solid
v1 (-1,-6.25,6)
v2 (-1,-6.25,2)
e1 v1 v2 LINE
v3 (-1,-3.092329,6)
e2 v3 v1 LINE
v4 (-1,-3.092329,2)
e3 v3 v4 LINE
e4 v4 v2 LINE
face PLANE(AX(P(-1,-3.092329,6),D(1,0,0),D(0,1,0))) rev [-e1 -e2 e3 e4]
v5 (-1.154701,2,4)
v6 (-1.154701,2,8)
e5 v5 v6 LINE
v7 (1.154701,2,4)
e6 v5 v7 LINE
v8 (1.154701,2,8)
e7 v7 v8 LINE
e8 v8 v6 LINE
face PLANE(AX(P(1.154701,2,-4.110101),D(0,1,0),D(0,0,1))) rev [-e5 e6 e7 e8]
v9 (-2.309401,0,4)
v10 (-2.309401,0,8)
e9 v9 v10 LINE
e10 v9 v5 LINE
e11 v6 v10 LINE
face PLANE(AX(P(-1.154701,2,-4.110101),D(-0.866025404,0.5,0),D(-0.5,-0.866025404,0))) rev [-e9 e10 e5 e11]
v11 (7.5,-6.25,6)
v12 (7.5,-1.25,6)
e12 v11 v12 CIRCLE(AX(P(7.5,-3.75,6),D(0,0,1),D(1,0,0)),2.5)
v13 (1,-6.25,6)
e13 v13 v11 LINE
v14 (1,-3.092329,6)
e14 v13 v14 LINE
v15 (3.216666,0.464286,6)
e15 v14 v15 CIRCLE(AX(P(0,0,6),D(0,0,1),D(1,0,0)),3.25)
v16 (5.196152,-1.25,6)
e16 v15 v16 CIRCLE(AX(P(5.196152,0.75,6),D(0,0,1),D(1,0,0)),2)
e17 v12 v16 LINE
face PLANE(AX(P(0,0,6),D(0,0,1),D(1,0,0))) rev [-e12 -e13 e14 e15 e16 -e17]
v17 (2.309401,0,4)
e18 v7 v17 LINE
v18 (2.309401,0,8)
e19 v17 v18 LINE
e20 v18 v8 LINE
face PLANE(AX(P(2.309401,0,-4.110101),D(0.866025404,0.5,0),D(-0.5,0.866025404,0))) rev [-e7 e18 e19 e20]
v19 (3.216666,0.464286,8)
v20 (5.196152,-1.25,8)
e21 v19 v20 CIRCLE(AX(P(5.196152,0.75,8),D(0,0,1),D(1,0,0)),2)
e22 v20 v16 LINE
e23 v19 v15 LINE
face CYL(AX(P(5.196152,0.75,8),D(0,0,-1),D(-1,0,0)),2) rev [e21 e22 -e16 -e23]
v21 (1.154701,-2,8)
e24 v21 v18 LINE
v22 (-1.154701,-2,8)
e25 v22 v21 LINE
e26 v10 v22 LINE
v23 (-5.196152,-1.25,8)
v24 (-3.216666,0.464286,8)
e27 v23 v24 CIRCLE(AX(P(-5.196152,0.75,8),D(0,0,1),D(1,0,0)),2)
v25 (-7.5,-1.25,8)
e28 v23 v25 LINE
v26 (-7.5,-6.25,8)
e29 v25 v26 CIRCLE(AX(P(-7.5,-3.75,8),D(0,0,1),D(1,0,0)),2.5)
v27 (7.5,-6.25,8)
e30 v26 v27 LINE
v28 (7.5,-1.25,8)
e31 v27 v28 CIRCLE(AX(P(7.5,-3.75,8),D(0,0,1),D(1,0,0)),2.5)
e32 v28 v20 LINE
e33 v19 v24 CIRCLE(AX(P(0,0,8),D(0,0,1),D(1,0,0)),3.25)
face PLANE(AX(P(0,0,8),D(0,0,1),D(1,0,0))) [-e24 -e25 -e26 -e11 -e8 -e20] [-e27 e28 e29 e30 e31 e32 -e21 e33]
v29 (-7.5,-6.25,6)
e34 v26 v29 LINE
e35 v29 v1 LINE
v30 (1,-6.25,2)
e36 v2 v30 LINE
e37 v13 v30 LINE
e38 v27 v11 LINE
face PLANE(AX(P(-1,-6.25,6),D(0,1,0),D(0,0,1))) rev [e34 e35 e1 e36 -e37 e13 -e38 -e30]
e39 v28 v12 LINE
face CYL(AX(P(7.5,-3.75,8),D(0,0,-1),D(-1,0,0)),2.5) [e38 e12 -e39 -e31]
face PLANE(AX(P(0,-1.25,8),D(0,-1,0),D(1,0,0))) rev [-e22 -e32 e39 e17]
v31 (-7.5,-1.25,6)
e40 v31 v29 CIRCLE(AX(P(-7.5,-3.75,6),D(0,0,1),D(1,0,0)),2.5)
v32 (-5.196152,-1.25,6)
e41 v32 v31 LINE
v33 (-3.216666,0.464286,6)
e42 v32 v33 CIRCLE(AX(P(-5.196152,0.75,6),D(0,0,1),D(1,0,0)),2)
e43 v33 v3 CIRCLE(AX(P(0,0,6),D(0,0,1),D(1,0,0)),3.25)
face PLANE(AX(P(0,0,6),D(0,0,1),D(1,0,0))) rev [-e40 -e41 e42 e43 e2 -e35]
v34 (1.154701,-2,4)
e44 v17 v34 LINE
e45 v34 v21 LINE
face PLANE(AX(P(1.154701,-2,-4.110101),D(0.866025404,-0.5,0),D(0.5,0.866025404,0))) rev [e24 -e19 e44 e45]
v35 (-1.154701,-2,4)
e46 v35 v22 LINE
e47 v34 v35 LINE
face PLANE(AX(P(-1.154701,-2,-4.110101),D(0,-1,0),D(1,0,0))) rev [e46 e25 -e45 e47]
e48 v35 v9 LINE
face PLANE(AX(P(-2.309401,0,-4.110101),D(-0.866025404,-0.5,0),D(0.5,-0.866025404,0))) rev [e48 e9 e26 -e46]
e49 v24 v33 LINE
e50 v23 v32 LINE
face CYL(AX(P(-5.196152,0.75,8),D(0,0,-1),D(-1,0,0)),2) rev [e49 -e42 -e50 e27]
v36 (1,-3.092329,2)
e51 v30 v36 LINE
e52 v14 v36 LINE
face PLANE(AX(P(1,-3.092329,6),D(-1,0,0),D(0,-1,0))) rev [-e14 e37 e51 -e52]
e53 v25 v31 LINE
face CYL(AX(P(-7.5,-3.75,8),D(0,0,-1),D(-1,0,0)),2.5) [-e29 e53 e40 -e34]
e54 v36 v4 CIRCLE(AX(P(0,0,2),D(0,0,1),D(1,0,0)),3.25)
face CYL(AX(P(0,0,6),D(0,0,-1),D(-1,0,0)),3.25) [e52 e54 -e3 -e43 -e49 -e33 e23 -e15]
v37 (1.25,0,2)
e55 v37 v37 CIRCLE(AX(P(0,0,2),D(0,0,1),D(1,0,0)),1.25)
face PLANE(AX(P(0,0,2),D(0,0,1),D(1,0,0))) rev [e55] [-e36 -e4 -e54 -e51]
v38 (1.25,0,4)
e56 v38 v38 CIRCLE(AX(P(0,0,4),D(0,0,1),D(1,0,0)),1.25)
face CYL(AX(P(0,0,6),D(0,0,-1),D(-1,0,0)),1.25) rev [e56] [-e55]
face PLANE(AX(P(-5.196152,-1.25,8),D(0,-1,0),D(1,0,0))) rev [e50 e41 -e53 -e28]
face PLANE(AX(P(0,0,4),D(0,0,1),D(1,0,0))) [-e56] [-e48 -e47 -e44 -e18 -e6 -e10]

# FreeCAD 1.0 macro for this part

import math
import FreeCAD as App
import Part
import Sketcher
Q = App.Units.Quantity


def edges_at(feature, points):
    """Names of the edges that pass closest to the given points."""
    edges = feature.Shape.Edges
    near = lambda p: min(range(len(edges)), key=lambda i: edges[i].distToShape(Part.Vertex(*p))[0])
    return sorted({f"Edge{near(p) + 1}" for p in points})


def add_polygon(sketch, points):
    """Adds a closed chain of lines whose ends are joined by coincident constraints."""
    first, n = sketch.GeometryCount, len(points)
    for a, b in zip(points, points[1:] + points[:1]):
        sketch.addGeometry(Part.LineSegment(App.Vector(*a, 0), App.Vector(*b, 0)), False)
    for i in range(n):
        sketch.addConstraint(Sketcher.Constraint("Coincident", first + i, 2, first + (i + 1) % n, 1))

doc = App.newDocument("Part")
body = doc.addObject("PartDesign::Body", "Body")

sketch1 = body.newObject("Sketcher::SketchObject", "Sketch")
sketch1.AttachmentSupport = (doc.getObject("XY_Plane"), [""])
sketch1.MapMode = "FlatFace"
sketch1.addGeometry([
    Part.LineSegment(App.Vector(-3, -1.2, 0), App.Vector(-7.5, -1.2, 0)),
    Part.ArcOfCircle(Part.Circle(App.Vector(-7.5, -3.8, 0), App.Vector(0, 0, 1), 2.5), math.radians(90), math.radians(270)),
    Part.LineSegment(App.Vector(-7.5, -6.2, 0), App.Vector(7.5, -6.2, 0)),
    Part.ArcOfCircle(Part.Circle(App.Vector(7.5, -3.8, 0), App.Vector(0, 0, 1), 2.5), math.radians(-90), math.radians(90)),
    Part.LineSegment(App.Vector(7.5, -1.2, 0), App.Vector(3, -1.2, 0)),
    Part.ArcOfCircle(Part.Circle(App.Vector(0, 0, 0), App.Vector(0, 0, 1), 3.2), math.radians(-23), math.radians(203)),
    Part.Circle(App.Vector(0, 0, 0), App.Vector(0, 0, 1), 1.2),
], False)
sketch1.addConstraint([
    Sketcher.Constraint("Tangent", 0, 2, 1, 1),
    Sketcher.Constraint("Tangent", 1, 2, 2, 1),
    Sketcher.Constraint("Tangent", 2, 2, 3, 1),
    Sketcher.Constraint("Tangent", 3, 2, 4, 1),
    Sketcher.Constraint("Coincident", 4, 2, 5, 1),
    Sketcher.Constraint("Coincident", 5, 2, 0, 1),
    Sketcher.Constraint("Horizontal", 0),
    Sketcher.Constraint("Horizontal", 2),
    Sketcher.Constraint("Horizontal", 4),
    Sketcher.Constraint("Coincident", 5, 3, -1, 1),
    Sketcher.Constraint("Coincident", 6, 3, -1, 1),
    Sketcher.Constraint("Equal", 1, 3),
    Sketcher.Constraint("Equal", 0, 4),
    Sketcher.Constraint("Diameter", 6, Q("2.5 mm")),
    Sketcher.Constraint("Radius", 1, Q("2.5 mm")),
    Sketcher.Constraint("DistanceX", 2, 1, 2, 2, Q("15 mm")),
    Sketcher.Constraint("Radius", 5, Q("3.25 mm")),
    Sketcher.Constraint("DistanceX", 0, 2, 0, 1, Q("4.5 mm")),
])
pad1 = body.newObject("PartDesign::Pad", "Pad")
pad1.Profile = sketch1
pad1.Length = 2

sketch2 = body.newObject("Sketcher::SketchObject", "Sketch001")
sketch2.AttachmentSupport = (doc.getObject("XY_Plane"), [""])
sketch2.MapMode = "FlatFace"
sketch2.AttachmentOffset = App.Placement(App.Vector(0, 0, 2), App.Rotation())
sketch2.addGeometry([
    Part.LineSegment(App.Vector(-8, -6.2, 0), App.Vector(-8, -1.3, 0)),
    Part.ArcOfCircle(Part.Circle(App.Vector(-7.5, -3.8, 0), App.Vector(0, 0, 1), 2.5), math.radians(102), math.radians(258)),
    Part.ArcOfCircle(Part.Circle(App.Vector(0, 0, 0), App.Vector(0, 0, 1), 3.5), math.radians(-150), math.radians(-30)),
    Part.LineSegment(App.Vector(-3, -1.7, 0), App.Vector(-3, -6.2, 0)),
    Part.LineSegment(App.Vector(-3, -6.2, 0), App.Vector(3, -6.2, 0)),
    Part.LineSegment(App.Vector(3, -6.2, 0), App.Vector(3, -1.7, 0)),
    Part.ArcOfCircle(Part.Circle(App.Vector(7.5, -3.8, 0), App.Vector(0, 0, 1), 2.5), math.radians(-78), math.radians(78)),
    Part.LineSegment(App.Vector(8, -1.3, 0), App.Vector(8, -6.2, 0)),
], False)
sketch2.addConstraint([
    Sketcher.Constraint("Coincident", 0, 1, 1, 2),
    Sketcher.Constraint("Coincident", 1, 1, 0, 2),
    Sketcher.Constraint("Coincident", 2, 1, 3, 1),
    Sketcher.Constraint("Coincident", 3, 2, 4, 1),
    Sketcher.Constraint("Coincident", 4, 2, 5, 1),
    Sketcher.Constraint("Coincident", 5, 2, 2, 2),
    Sketcher.Constraint("Coincident", 6, 1, 7, 2),
    Sketcher.Constraint("Coincident", 7, 1, 6, 2),
    Sketcher.Constraint("Vertical", 0),
    Sketcher.Constraint("Vertical", 3),
    Sketcher.Constraint("Horizontal", 4),
    Sketcher.Constraint("Vertical", 5),
    Sketcher.Constraint("Vertical", 7),
    Sketcher.Constraint("Coincident", 2, 3, -1, 1),
    Sketcher.Constraint("Equal", 1, 6),
    Sketcher.Constraint("Symmetric", 1, 3, 6, 3, -2),
    Sketcher.Constraint("Horizontal", 2, 1, 5, 2),
    Sketcher.Constraint("Horizontal", 0, 1, 6, 1),
    Sketcher.Constraint("Radius", 1, Q("2.5 mm")),
    Sketcher.Constraint("DistanceX", 4, 1, 4, 2, Q("6 mm")),
    Sketcher.Constraint("Radius", 2, Q("3.45 mm")),
    Sketcher.Constraint("DistanceX", 0, 1, -1, 1, Q("8 mm")),
    Sketcher.Constraint("DistanceX", 1, 3, 6, 3, Q("15 mm")),
    Sketcher.Constraint("DistanceY", 3, 2, 1, 3, Q("2.5 mm")),
    Sketcher.Constraint("DistanceY", 1, 3, -1, 1, Q("3.75 mm")),
])
pad2 = body.newObject("PartDesign::Pad", "Pad001")
pad2.Profile = sketch2
pad2.Length = 4
doc.recompute()

fillet = body.newObject("PartDesign::Fillet", "Fillet")
fillet.Base = (pad2, edges_at(pad2, [(3, -1.25, 1), (-3, -1.25, 1)]))
fillet.Radius = 2
body2 = doc.addObject("PartDesign::Body", "Body001")

sketch3 = body2.newObject("Sketcher::SketchObject", "Sketch002")
sketch3.AttachmentSupport = (doc.getObject("XY_Plane001"), [""])
sketch3.MapMode = "FlatFace"
sketch3.AttachmentOffset = App.Placement(App.Vector(0, 0, 2), App.Rotation())
sketch3.addGeometry([
    Part.LineSegment(App.Vector(-1, -3.1, 0), App.Vector(-1, -6.2, 0)),
    Part.LineSegment(App.Vector(-1, -6.2, 0), App.Vector(1, -6.2, 0)),
    Part.LineSegment(App.Vector(1, -6.2, 0), App.Vector(1, -3.1, 0)),
    Part.ArcOfCircle(Part.Circle(App.Vector(0, 0, 0), App.Vector(0, 0, 1), 3.2), math.radians(-72), math.radians(252)),
    Part.Circle(App.Vector(0, 0, 0), App.Vector(0, 0, 1), 1.2),
], False)
sketch3.addConstraint([
    Sketcher.Constraint("Coincident", 0, 2, 1, 1),
    Sketcher.Constraint("Coincident", 1, 2, 2, 1),
    Sketcher.Constraint("Coincident", 2, 2, 3, 1),
    Sketcher.Constraint("Coincident", 3, 2, 0, 1),
    Sketcher.Constraint("Vertical", 0),
    Sketcher.Constraint("Horizontal", 1),
    Sketcher.Constraint("Vertical", 2),
    Sketcher.Constraint("Coincident", 3, 3, -1, 1),
    Sketcher.Constraint("Coincident", 4, 3, -1, 1),
    Sketcher.Constraint("Horizontal", 2, 2, 3, 2),
    Sketcher.Constraint("Diameter", 4, Q("2.5 mm")),
    Sketcher.Constraint("DistanceX", 1, 1, 1, 2, Q("2 mm")),
    Sketcher.Constraint("Radius", 3, Q("3.25 mm")),
    Sketcher.Constraint("DistanceY", 0, 2, -1, 1, Q("6.25 mm")),
])
pad3 = body2.newObject("PartDesign::Pad", "Pad002")
pad3.Profile = sketch3
pad3.Length = 4

sketch4 = body2.newObject("Sketcher::SketchObject", "Sketch003")
sketch4.AttachmentSupport = (doc.getObject("XY_Plane001"), [""])
sketch4.MapMode = "FlatFace"
sketch4.AttachmentOffset = App.Placement(App.Vector(0, 0, 6), App.Rotation())
sketch4.addGeometry([
    Part.LineSegment(App.Vector(7.5, -1.2, 0), App.Vector(5.2, -1.2, 0)),
    Part.ArcOfCircle(Part.Circle(App.Vector(5.2, 0.8, 0), App.Vector(0, 0, 1), 2), math.radians(-172), math.radians(-90)),
    Part.ArcOfCircle(Part.Circle(App.Vector(0, 0, 0), App.Vector(0, 0, 1), 3.2), math.radians(8), math.radians(172)),
    Part.ArcOfCircle(Part.Circle(App.Vector(-5.2, 0.8, 0), App.Vector(0, 0, 1), 2), math.radians(-90), math.radians(-8)),
    Part.LineSegment(App.Vector(-5.2, -1.2, 0), App.Vector(-7.5, -1.2, 0)),
    Part.ArcOfCircle(Part.Circle(App.Vector(-7.5, -3.8, 0), App.Vector(0, 0, 1), 2.5), math.radians(90), math.radians(270)),
    Part.LineSegment(App.Vector(-7.5, -6.2, 0), App.Vector(7.5, -6.2, 0)),
    Part.ArcOfCircle(Part.Circle(App.Vector(7.5, -3.8, 0), App.Vector(0, 0, 1), 2.5), math.radians(-90), math.radians(90)),
], False)
sketch4.addConstraint([
    Sketcher.Constraint("Tangent", 0, 2, 1, 2),
    Sketcher.Constraint("Tangent", 1, 1, 2, 1),
    Sketcher.Constraint("Tangent", 2, 2, 3, 2),
    Sketcher.Constraint("Tangent", 3, 1, 4, 1),
    Sketcher.Constraint("Tangent", 4, 2, 5, 1),
    Sketcher.Constraint("Tangent", 5, 2, 6, 1),
    Sketcher.Constraint("Tangent", 6, 2, 7, 1),
    Sketcher.Constraint("Tangent", 7, 2, 0, 1),
    Sketcher.Constraint("Horizontal", 0),
    Sketcher.Constraint("Horizontal", 4),
    Sketcher.Constraint("Horizontal", 6),
    Sketcher.Constraint("Coincident", 2, 3, -1, 1),
    Sketcher.Constraint("Equal", 1, 3),
    Sketcher.Constraint("Equal", 5, 7),
    Sketcher.Constraint("Equal", 0, 4),
    Sketcher.Constraint("Radius", 1, Q("2 mm")),
    Sketcher.Constraint("Radius", 5, Q("2.5 mm")),
    Sketcher.Constraint("DistanceX", 6, 1, 6, 2, Q("15 mm")),
    Sketcher.Constraint("Radius", 2, Q("3.25 mm")),
    Sketcher.Constraint("DistanceY", -1, 1, 1, 3, Q("0.75 mm")),
])
pad4 = body2.newObject("PartDesign::Pad", "Pad003")
pad4.Profile = sketch4
pad4.Length = 2

sketch5 = body2.newObject("Sketcher::SketchObject", "Sketch004")
sketch5.AttachmentSupport = (doc.getObject("XY_Plane001"), [""])
sketch5.MapMode = "FlatFace"
sketch5.AttachmentOffset = App.Placement(App.Vector(0, 0, 8), App.Rotation())
add_polygon(sketch5, [(1.2, 2), (-1.2, 2), (-2.3, 0), (-1.2, -2), (1.2, -2), (2.3, 0)])
sketch5.addConstraint([
    Sketcher.Constraint("Horizontal", 0),
    Sketcher.Constraint("Horizontal", 3),
    Sketcher.Constraint("Symmetric", 0, 2, 3, 2, -1, 1),
    Sketcher.Constraint("Symmetric", 1, 2, 4, 2, -1, 1),
    Sketcher.Constraint("PointOnObject", 1, 2, -1),
    Sketcher.Constraint("Parallel", 2, 5),
    Sketcher.Constraint("Vertical", 0, 2, 2, 2),
    Sketcher.Constraint("Angle", 1, Q("-120 deg")),
    Sketcher.Constraint("DistanceY", -1, 1, 0, 2, Q("2 mm")),
    Sketcher.Constraint("DistanceX", 0, 2, 0, 1, Q("2.309401 mm")),
])
pocket1 = body2.newObject("PartDesign::Pocket", "Pocket")
pocket1.Profile = sketch5
pocket1.Length = 4
body.Visibility = False

doc.recompute()
